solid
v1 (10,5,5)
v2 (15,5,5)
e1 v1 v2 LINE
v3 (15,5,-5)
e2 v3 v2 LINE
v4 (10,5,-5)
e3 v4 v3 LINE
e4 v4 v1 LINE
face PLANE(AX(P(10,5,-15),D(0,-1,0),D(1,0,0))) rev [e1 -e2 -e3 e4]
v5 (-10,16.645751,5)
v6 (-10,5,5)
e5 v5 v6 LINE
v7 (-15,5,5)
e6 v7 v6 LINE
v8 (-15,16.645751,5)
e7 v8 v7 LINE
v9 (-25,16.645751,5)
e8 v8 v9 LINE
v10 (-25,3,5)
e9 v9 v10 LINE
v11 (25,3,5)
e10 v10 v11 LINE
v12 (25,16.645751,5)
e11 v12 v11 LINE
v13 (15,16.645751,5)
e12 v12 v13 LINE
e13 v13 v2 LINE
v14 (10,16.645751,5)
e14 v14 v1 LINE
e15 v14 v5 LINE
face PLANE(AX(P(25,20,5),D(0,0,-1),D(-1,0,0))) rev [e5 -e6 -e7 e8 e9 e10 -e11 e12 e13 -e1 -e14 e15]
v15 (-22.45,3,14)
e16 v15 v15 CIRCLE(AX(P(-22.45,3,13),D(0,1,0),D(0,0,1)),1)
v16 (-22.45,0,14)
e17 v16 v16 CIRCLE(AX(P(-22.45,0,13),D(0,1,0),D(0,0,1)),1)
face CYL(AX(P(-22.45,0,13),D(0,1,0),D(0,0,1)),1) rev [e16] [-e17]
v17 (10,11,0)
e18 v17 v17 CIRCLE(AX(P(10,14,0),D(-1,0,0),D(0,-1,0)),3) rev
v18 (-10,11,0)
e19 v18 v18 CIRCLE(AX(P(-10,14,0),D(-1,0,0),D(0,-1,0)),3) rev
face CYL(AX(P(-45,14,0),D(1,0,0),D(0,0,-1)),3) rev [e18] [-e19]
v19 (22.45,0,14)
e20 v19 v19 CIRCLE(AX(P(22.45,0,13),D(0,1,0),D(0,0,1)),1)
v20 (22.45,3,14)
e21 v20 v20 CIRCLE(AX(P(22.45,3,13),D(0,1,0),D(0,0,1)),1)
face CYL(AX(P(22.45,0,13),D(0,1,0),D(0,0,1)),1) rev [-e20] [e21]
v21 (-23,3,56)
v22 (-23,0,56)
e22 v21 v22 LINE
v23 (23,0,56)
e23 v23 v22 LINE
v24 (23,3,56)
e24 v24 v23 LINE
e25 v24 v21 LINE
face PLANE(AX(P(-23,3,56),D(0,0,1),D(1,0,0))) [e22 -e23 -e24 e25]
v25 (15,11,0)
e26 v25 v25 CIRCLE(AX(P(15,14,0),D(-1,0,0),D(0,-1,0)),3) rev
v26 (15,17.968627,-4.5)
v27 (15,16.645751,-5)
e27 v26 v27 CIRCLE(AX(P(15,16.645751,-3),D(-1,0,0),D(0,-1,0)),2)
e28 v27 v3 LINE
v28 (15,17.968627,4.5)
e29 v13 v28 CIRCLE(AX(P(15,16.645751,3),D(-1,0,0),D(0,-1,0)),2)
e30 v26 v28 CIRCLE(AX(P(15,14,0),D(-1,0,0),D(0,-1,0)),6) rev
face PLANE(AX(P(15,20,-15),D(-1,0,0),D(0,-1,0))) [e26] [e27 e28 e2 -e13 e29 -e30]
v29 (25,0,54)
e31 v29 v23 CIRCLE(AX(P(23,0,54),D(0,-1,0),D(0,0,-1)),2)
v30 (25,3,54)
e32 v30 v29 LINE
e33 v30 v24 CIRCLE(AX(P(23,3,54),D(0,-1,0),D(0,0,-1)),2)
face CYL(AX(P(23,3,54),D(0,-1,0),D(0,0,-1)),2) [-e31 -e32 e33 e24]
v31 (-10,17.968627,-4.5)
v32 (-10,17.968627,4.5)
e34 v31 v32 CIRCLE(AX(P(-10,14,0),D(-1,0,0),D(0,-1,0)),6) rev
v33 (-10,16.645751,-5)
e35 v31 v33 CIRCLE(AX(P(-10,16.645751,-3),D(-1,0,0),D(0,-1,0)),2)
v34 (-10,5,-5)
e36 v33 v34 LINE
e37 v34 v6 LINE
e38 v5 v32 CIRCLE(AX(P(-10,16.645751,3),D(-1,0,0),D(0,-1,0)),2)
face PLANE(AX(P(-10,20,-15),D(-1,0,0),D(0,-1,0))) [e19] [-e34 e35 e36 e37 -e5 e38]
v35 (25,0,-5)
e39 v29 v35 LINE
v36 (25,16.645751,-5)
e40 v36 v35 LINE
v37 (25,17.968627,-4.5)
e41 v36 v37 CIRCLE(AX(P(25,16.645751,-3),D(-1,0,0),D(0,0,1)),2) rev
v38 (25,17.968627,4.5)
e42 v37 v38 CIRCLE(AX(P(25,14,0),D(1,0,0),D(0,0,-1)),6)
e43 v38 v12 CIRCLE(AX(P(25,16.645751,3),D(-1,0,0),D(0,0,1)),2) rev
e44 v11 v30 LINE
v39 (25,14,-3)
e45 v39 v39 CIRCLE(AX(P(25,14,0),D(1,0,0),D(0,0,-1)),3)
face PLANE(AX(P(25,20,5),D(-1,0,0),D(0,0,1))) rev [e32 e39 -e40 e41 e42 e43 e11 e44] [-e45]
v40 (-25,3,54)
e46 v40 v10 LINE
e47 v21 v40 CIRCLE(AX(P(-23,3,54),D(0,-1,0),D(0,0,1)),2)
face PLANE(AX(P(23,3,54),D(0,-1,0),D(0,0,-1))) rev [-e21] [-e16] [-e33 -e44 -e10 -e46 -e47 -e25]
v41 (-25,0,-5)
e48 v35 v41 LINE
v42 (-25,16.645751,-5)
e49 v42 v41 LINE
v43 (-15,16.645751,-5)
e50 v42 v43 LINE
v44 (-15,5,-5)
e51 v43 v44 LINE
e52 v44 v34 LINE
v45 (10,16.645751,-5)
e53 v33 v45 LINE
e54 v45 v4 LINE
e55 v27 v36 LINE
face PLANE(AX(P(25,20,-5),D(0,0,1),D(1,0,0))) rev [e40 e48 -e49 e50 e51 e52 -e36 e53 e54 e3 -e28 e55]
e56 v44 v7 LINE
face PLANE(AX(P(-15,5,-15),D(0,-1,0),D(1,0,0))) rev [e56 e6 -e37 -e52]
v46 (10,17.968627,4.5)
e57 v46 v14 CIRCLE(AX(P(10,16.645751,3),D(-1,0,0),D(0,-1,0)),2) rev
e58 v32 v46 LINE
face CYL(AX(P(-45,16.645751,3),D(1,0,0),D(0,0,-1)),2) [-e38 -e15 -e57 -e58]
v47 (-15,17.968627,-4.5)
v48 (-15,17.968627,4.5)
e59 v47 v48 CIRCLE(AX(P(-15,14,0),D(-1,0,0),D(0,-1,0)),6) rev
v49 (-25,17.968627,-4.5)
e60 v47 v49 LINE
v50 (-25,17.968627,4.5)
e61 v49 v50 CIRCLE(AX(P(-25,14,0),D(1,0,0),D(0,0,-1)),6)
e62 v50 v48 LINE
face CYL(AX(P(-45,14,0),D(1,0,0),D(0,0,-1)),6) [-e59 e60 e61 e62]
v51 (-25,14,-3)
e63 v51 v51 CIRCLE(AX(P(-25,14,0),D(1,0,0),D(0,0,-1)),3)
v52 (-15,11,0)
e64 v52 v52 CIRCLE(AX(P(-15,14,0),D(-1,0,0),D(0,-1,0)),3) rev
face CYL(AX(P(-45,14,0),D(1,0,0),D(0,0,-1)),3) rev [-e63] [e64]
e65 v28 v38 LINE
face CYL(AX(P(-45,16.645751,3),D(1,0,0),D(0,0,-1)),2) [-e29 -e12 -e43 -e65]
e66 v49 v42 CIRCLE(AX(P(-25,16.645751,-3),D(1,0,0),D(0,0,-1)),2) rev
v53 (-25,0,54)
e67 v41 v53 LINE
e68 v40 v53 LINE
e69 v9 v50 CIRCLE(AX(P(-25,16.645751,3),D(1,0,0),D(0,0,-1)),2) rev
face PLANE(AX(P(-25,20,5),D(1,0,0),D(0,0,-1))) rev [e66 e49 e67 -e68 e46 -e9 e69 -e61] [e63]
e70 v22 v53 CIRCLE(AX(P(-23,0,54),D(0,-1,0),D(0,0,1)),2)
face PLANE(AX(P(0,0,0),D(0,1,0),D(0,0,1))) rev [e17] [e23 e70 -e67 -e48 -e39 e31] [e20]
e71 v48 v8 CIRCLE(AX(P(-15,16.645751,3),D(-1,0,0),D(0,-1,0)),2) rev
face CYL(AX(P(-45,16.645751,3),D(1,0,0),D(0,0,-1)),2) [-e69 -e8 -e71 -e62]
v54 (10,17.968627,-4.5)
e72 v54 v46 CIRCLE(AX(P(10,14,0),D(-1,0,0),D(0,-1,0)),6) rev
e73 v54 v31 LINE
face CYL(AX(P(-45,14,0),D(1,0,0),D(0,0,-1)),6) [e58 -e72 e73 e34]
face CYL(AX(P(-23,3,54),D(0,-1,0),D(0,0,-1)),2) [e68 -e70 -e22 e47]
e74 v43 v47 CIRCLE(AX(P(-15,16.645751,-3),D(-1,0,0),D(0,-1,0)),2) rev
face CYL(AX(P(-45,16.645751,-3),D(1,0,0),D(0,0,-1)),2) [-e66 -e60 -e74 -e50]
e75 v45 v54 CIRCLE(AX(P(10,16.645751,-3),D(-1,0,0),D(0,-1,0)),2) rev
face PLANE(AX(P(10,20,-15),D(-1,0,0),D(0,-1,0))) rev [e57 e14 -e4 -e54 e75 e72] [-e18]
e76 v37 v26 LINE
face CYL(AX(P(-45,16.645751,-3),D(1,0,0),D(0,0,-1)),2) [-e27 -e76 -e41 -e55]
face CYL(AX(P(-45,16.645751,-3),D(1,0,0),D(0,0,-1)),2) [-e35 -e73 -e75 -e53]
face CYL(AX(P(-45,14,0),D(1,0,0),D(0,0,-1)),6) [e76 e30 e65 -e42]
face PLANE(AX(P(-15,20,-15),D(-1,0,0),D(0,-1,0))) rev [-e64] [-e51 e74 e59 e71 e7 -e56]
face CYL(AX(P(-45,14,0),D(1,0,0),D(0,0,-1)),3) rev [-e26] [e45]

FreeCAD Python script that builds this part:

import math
import FreeCAD as App
import Part
import Sketcher
from FreeCAD import Vector


def edges_at(feature, points):
    """Names of the edges that pass closest to the given points."""
    edges = feature.Shape.Edges
    near = lambda p: min(range(len(edges)), key=lambda i: edges[i].distToShape(Part.Vertex(*p))[0])
    return sorted({f"Edge{near(p) + 1}" for p in points})

doc = App.newDocument("Part")
body = doc.addObject("PartDesign::Body", "Body")

# Sketch on XZ plane
sketch1 = doc.addObject("Sketcher::SketchObject", "Sketch")
body.addObject(sketch1)
sketch1.AttachmentSupport = (doc.XZ_Plane, [""])
sketch1.MapMode = "FlatFace"
sketch1.addGeometry([
    Part.LineSegment(Vector(-25, -5, 0), Vector(-25, 5, 0)),
    Part.LineSegment(Vector(-25, 5, 0), Vector(25, 5, 0)),
    Part.LineSegment(Vector(25, 5, 0), Vector(25, -5, 0)),
    Part.LineSegment(Vector(25, -5, 0), Vector(-25, -5, 0)),
], False)
sketch1.addConstraint([
    Sketcher.Constraint("Coincident", 0, 2, 1, 1),
    Sketcher.Constraint("Coincident", 1, 2, 2, 1),
    Sketcher.Constraint("Coincident", 2, 2, 3, 1),
    Sketcher.Constraint("Coincident", 3, 2, 0, 1),
    Sketcher.Constraint("Vertical", 0),
    Sketcher.Constraint("Horizontal", 1),
    Sketcher.Constraint("Vertical", 2),
    Sketcher.Constraint("Horizontal", 3),
    Sketcher.Constraint("Symmetric", 0, 2, 2, 2, -1, 1),
    Sketcher.Constraint("DistanceX", 1, 1, 1, 2, 50.0),
    Sketcher.Constraint("DistanceY", 0, 1, 0, 2, 10.0),
])
pad1 = doc.addObject("PartDesign::Pad", "Pad")
body.addObject(pad1)
pad1.Profile = sketch1
pad1.Length = 20
pad1.Reversed = True

# Sketch on YZ plane
sketch2 = doc.addObject("Sketcher::SketchObject", "Sketch001")
body.addObject(sketch2)
sketch2.AttachmentSupport = (doc.YZ_Plane, [""])
sketch2.MapMode = "FlatFace"
sketch2.AttachmentOffset = App.Placement(Vector(0, 0, 25), App.Rotation())
sketch2.addGeometry([
    Part.ArcOfCircle(Part.Circle(Vector(14, 0, 0), Vector(0, 0, 1), 6), math.radians(-56.44269), math.radians(0)),  # 0
    Part.LineSegment(Vector(17.316625, -5, 0), Vector(20, -5, 0)),  # 1
    Part.LineSegment(Vector(20, -5, 0), Vector(20, 0, 0)),  # 2
    Part.ArcOfCircle(Part.Circle(Vector(14, 0, 0), Vector(0, 0, 1), 6), math.radians(0), math.radians(56.44269)),  # 3
    Part.LineSegment(Vector(20, 0, 0), Vector(20, 5, 0)),  # 4
    Part.LineSegment(Vector(20, 5, 0), Vector(17.316625, 5, 0)),  # 5
], False)
sketch2.addConstraint([
    Sketcher.Constraint("Coincident", 0, 1, 1, 1),
    Sketcher.Constraint("Coincident", 1, 2, 2, 1),
    Sketcher.Constraint("Tangent", 2, 2, 0, 2),
    Sketcher.Constraint("Tangent", 3, 1, 4, 1),
    Sketcher.Constraint("Coincident", 4, 2, 5, 1),
    Sketcher.Constraint("Coincident", 5, 2, 3, 2),
    Sketcher.Constraint("Horizontal", 1),
    Sketcher.Constraint("Vertical", 2),
    Sketcher.Constraint("Vertical", 4),
    Sketcher.Constraint("Horizontal", 5),
    Sketcher.Constraint("Coincident", 3, 3, 0, 3),
    Sketcher.Constraint("Equal", 0, 3),
    Sketcher.Constraint("Symmetric", 0, 1, 5, 2, -1),
    Sketcher.Constraint("Radius", 0, 6.0),
    Sketcher.Constraint("DistanceY", 2, 1, 2, 2, 5.0),
    Sketcher.Constraint("DistanceX", -1, 1, 0, 3, 14.0),
])
pocket1 = doc.addObject("PartDesign::Pocket", "Pocket")
body.addObject(pocket1)
pocket1.Profile = sketch2
pocket1.Length = 70

# Sketch on YZ plane
sketch3 = doc.addObject("Sketcher::SketchObject", "Sketch002")
body.addObject(sketch3)
sketch3.AttachmentSupport = (doc.YZ_Plane, [""])
sketch3.MapMode = "FlatFace"
sketch3.AttachmentOffset = App.Placement(Vector(0, 0, 25), App.Rotation())
sketch3.addGeometry(Part.Circle(Vector(14, 0, 0), Vector(0, 0, 1), 3), False)
sketch3.addConstraint([
    Sketcher.Constraint("PointOnObject", 0, 3, -1),
    Sketcher.Constraint("Diameter", 0, 6.0),
    Sketcher.Constraint("DistanceX", -1, 1, 0, 3, 14.0),
])
pocket2 = doc.addObject("PartDesign::Pocket", "Pocket001")
body.addObject(pocket2)
pocket2.Profile = sketch3
pocket2.Length = 70

# Sketch on XY plane
sketch4 = doc.addObject("Sketcher::SketchObject", "Sketch003")
body.addObject(sketch4)
sketch4.AttachmentSupport = (doc.XY_Plane, [""])
sketch4.MapMode = "FlatFace"
sketch4.AttachmentOffset = App.Placement(Vector(0, 0, 5), App.Rotation())
sketch4.addGeometry([
    Part.LineSegment(Vector(-15, 20, 0), Vector(-15, 5, 0)),  # 0
    Part.LineSegment(Vector(-15, 5, 0), Vector(-10, 5, 0)),  # 1
    Part.LineSegment(Vector(-10, 5, 0), Vector(-10, 20, 0)),  # 2
    Part.LineSegment(Vector(-10, 20, 0), Vector(-15, 20, 0)),  # 3
    Part.LineSegment(Vector(10, 20, 0), Vector(10, 5, 0)),  # 4
    Part.LineSegment(Vector(10, 5, 0), Vector(15, 5, 0)),  # 5
    Part.LineSegment(Vector(15, 5, 0), Vector(15, 20, 0)),  # 6
    Part.LineSegment(Vector(15, 20, 0), Vector(10, 20, 0)),  # 7
], False)
sketch4.addConstraint([
    Sketcher.Constraint("Coincident", 0, 2, 1, 1),
    Sketcher.Constraint("Coincident", 1, 2, 2, 1),
    Sketcher.Constraint("Coincident", 2, 2, 3, 1),
    Sketcher.Constraint("Coincident", 3, 2, 0, 1),
    Sketcher.Constraint("Coincident", 4, 2, 5, 1),
    Sketcher.Constraint("Coincident", 5, 2, 6, 1),
    Sketcher.Constraint("Coincident", 6, 2, 7, 1),
    Sketcher.Constraint("Coincident", 7, 2, 4, 1),
    Sketcher.Constraint("Vertical", 0),
    Sketcher.Constraint("Horizontal", 1),
    Sketcher.Constraint("Vertical", 2),
    Sketcher.Constraint("Horizontal", 3),
    Sketcher.Constraint("Vertical", 4),
    Sketcher.Constraint("Horizontal", 5),
    Sketcher.Constraint("Vertical", 6),
    Sketcher.Constraint("Horizontal", 7),
    Sketcher.Constraint("Symmetric", 1, 2, 4, 2, -2),
    Sketcher.Constraint("Symmetric", 3, 2, 6, 2, -2),
    Sketcher.Constraint("DistanceX", 1, 1, 1, 2, 5.0),
    Sketcher.Constraint("DistanceY", 0, 2, 0, 1, 15.0),
    Sketcher.Constraint("DistanceX", 0, 2, -1, 1, 15.0),
    Sketcher.Constraint("DistanceY", -1, 1, 0, 2, 5.0),
])
pocket3 = doc.addObject("PartDesign::Pocket", "Pocket002")
body.addObject(pocket3)
pocket3.Profile = sketch4
pocket3.Length = 20
doc.recompute()

fillet = doc.addObject("PartDesign::Fillet", "Fillet")
body.addObject(fillet)
fillet.Base = (pocket3, edges_at(pocket3, [(-20, 17.317, 5)]))
fillet.Radius = 2
doc.recompute()

fillet2 = doc.addObject("PartDesign::Fillet", "Fillet001")
body.addObject(fillet2)
fillet2.Base = (fillet, edges_at(fillet, [(0, 17.317, 5)]))
fillet2.Radius = 2
doc.recompute()

fillet3 = doc.addObject("PartDesign::Fillet", "Fillet002")
body.addObject(fillet3)
fillet3.Base = (fillet2, edges_at(fillet2, [(20, 17.317, 5)]))
fillet3.Radius = 2
doc.recompute()

fillet4 = doc.addObject("PartDesign::Fillet", "Fillet003")
body.addObject(fillet4)
fillet4.Base = (fillet3, edges_at(fillet3, [(20, 17.317, -5)]))
fillet4.Radius = 2
doc.recompute()

fillet5 = doc.addObject("PartDesign::Fillet", "Fillet004")
body.addObject(fillet5)
fillet5.Base = (fillet4, edges_at(fillet4, [(0, 17.317, -5)]))
fillet5.Radius = 2
doc.recompute()

fillet6 = doc.addObject("PartDesign::Fillet", "Fillet005")
body.addObject(fillet6)
fillet6.Base = (fillet5, edges_at(fillet5, [(-20, 17.317, -5)]))
fillet6.Radius = 2

# Sketch on XZ plane
sketch5 = doc.addObject("Sketcher::SketchObject", "Sketch004")
body.addObject(sketch5)
sketch5.AttachmentSupport = (doc.XZ_Plane, [""])
sketch5.MapMode = "FlatFace"
sketch5.addGeometry([
    Part.LineSegment(Vector(-25, 5, 0), Vector(25, 5, 0)),  # 0
    Part.LineSegment(Vector(25, 5, 0), Vector(25, 54, 0)),  # 1
    Part.ArcOfCircle(Part.Circle(Vector(23, 54, 0), Vector(0, 0, 1), 2), math.radians(0), math.radians(90)),  # 2
    Part.LineSegment(Vector(23, 56, 0), Vector(-23, 56, 0)),  # 3
    Part.ArcOfCircle(Part.Circle(Vector(-23, 54, 0), Vector(0, 0, 1), 2), math.radians(90), math.radians(180)),  # 4
    Part.LineSegment(Vector(-25, 54, 0), Vector(-25, 5, 0)),  # 5
], False)
sketch5.addConstraint([
    Sketcher.Constraint("Coincident", 0, 2, 1, 1),
    Sketcher.Constraint("Tangent", 1, 2, 2, 1),
    Sketcher.Constraint("Tangent", 2, 2, 3, 1),
    Sketcher.Constraint("Tangent", 3, 2, 4, 1),
    Sketcher.Constraint("Tangent", 4, 2, 5, 1),
    Sketcher.Constraint("Coincident", 5, 2, 0, 1),
    Sketcher.Constraint("Horizontal", 0),
    Sketcher.Constraint("Vertical", 1),
    Sketcher.Constraint("Horizontal", 3),
    Sketcher.Constraint("Vertical", 5),
    Sketcher.Constraint("Equal", 2, 4),
    Sketcher.Constraint("Radius", 2, 2.0),
    Sketcher.Constraint("DistanceX", 0, 1, 0, 2, 50.0),
    Sketcher.Constraint("DistanceY", 1, 1, 1, 2, 49.0),
    Sketcher.Constraint("DistanceX", -1, 1, 2, 3, 23.0),
    Sketcher.Constraint("DistanceY", -1, 1, 2, 3, 54.0),
])
pad2 = doc.addObject("PartDesign::Pad", "Pad001")
body.addObject(pad2)
pad2.Profile = sketch5
pad2.Length = 3
pad2.Reversed = True

# Sketch on XZ plane
sketch6 = doc.addObject("Sketcher::SketchObject", "Sketch005")
body.addObject(sketch6)
sketch6.AttachmentSupport = (doc.XZ_Plane, [""])
sketch6.MapMode = "FlatFace"
sketch6.AttachmentOffset = App.Placement(Vector(0, 0, -3), App.Rotation())
sketch6.addGeometry([
    Part.Circle(Vector(-22.45, 13, 0), Vector(0, 0, 1), 1),
    Part.Circle(Vector(22.45, 13, 0), Vector(0, 0, 1), 1),
], False)
sketch6.addConstraint([
    Sketcher.Constraint("Equal", 0, 1),
    Sketcher.Constraint("Symmetric", 0, 3, 1, 3, -2),
    Sketcher.Constraint("Diameter", 0, 2.0),
    Sketcher.Constraint("DistanceY", -1, 1, 0, 3, 13.0),
    Sketcher.Constraint("DistanceX", 0, 3, 1, 3, 44.9),
])
pocket4 = doc.addObject("PartDesign::Pocket", "Pocket003")
body.addObject(pocket4)
pocket4.Profile = sketch6
pocket4.Length = 3
pocket4.Reversed = True

doc.recompute()
